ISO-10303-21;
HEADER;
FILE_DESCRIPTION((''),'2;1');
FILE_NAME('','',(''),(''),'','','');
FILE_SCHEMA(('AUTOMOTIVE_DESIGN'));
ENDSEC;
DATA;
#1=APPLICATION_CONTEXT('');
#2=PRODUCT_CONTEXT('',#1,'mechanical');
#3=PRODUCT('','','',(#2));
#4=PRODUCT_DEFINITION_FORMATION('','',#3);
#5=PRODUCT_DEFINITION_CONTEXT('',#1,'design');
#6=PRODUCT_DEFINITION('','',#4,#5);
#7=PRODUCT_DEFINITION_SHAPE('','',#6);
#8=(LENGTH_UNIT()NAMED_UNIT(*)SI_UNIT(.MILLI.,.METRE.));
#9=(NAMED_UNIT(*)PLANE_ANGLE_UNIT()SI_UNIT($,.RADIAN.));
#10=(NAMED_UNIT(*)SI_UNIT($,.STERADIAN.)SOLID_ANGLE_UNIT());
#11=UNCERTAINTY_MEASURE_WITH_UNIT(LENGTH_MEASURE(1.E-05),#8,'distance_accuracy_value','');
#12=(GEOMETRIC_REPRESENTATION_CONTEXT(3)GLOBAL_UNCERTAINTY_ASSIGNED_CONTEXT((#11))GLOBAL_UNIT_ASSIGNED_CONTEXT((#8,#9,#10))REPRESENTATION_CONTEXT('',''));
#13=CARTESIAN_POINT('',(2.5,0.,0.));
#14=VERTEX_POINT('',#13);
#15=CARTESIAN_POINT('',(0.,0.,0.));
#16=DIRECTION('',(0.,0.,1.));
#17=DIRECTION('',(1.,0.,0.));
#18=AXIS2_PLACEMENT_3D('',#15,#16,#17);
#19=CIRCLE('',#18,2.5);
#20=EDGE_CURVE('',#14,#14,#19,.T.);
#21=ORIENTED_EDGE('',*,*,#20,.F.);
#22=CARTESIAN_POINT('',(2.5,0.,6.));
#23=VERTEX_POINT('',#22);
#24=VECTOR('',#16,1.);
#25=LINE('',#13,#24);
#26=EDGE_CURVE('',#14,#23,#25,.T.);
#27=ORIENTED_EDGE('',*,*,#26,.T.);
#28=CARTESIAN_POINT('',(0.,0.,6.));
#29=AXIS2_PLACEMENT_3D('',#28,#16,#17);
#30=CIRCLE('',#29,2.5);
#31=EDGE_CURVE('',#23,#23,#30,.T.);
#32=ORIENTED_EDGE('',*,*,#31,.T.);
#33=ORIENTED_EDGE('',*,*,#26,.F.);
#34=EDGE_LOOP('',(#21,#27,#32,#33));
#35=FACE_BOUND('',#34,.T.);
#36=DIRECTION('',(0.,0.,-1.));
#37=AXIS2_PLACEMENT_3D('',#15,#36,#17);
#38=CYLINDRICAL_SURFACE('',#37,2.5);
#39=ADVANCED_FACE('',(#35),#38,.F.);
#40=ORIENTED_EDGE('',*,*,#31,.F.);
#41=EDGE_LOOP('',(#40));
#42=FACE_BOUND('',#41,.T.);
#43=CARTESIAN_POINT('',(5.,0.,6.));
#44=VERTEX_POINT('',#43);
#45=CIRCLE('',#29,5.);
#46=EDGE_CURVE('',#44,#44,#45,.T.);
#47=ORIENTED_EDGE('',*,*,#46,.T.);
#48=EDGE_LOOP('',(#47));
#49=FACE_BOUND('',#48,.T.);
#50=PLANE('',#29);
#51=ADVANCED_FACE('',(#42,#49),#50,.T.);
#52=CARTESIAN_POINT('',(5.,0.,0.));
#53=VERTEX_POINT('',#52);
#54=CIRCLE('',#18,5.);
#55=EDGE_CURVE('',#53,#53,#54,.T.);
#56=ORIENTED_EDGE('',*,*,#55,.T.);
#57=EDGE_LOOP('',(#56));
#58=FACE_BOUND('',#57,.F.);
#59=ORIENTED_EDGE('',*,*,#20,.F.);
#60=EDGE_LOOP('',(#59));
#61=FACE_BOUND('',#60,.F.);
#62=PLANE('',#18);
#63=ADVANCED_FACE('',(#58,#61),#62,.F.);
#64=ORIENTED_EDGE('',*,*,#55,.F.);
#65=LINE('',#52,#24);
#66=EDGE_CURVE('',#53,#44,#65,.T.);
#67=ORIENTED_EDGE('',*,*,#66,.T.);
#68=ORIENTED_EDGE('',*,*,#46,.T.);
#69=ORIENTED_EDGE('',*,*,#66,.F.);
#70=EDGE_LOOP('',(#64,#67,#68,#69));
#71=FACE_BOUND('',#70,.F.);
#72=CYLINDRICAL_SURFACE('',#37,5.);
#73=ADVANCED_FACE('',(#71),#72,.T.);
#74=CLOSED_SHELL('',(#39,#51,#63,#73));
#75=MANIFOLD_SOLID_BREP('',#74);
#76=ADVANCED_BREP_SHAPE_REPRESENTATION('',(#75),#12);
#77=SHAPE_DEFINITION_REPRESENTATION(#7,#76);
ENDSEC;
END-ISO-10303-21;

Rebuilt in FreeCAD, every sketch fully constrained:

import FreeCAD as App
import Part
import Sketcher

doc = App.newDocument("Part")
body = doc.addObject("PartDesign::Body", "Body")

# Sketch on XY plane
sketch1 = doc.addObject("Sketcher::SketchObject", "Sketch")
body.addObject(sketch1)
sketch1.AttachmentSupport = (doc.XY_Plane, [""])
sketch1.MapMode = "FlatFace"
sketch1.addGeometry(Part.Circle(App.Vector(0, 0, 0), App.Vector(0, 0, 1), 2.5), False)
sketch1.addConstraint([
    Sketcher.Constraint("Coincident", 0, 3, -1, 1),
    Sketcher.Constraint("Diameter", 0, 5.0),
])
pad1 = doc.addObject("PartDesign::Pad", "Pad")
body.addObject(pad1)
pad1.Profile = sketch1
pad1.Length = 6
body2 = doc.addObject("PartDesign::Body", "Body001")

# Sketch on XY plane
sketch2 = doc.addObject("Sketcher::SketchObject", "Sketch001")
body2.addObject(sketch2)
sketch2.AttachmentSupport = (doc.getObject("XY_Plane001"), [""])
sketch2.MapMode = "FlatFace"
sketch2.addGeometry(Part.Circle(App.Vector(0, 0, 0), App.Vector(0, 0, 1), 5), False)
sketch2.addConstraint([
    Sketcher.Constraint("Coincident", 0, 3, -1, 1),
    Sketcher.Constraint("Diameter", 0, 10.0),
])
pad2 = doc.addObject("PartDesign::Pad", "Pad001")
body2.addObject(pad2)
pad2.Profile = sketch2
pad2.Length = 6
doc.recompute()

boolean = doc.addObject("PartDesign::Boolean", "Boolean")
body2.addObject(boolean)
boolean.Type = "Cut"
boolean.addObjects([body])

doc.recompute()
